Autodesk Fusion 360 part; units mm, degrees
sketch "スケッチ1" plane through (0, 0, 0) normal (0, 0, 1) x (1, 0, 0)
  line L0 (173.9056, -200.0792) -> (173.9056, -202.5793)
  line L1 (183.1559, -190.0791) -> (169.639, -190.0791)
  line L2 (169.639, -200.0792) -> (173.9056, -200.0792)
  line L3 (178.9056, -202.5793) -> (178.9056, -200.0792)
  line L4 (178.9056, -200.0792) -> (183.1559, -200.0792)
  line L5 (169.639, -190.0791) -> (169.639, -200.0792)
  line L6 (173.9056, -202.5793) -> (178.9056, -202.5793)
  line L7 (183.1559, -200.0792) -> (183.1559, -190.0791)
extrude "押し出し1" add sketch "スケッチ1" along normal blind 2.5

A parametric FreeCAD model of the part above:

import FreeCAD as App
import Part
import Sketcher

V = App.Vector
Q = App.Units.Quantity


def add_polygon(sketch, points):
    """Adds a closed chain of lines whose ends are joined by coincident constraints."""
    first, n = sketch.GeometryCount, len(points)
    for a, b in zip(points, points[1:] + points[:1]):
        sketch.addGeometry(Part.LineSegment(App.Vector(*a, 0), App.Vector(*b, 0)), False)
    for i in range(n):
        sketch.addConstraint(Sketcher.Constraint("Coincident", first + i, 2, first + (i + 1) % n, 1))

doc = App.newDocument("Part")
params = doc.addObject("Spreadsheet::Sheet", "Params")
for row, (alias, value) in enumerate([
    ("sketch1_width", "5 mm"),
    ("sketch1_height", "10 mm"),
    ("sketch1_height2", "2.5 mm"),
    ("pad1_length", "2.5 mm"),
], start=1):
    params.set(f"A{row}", alias)
    params.set(f"B{row}", "=" + value)
    params.setAlias(f"B{row}", alias)

body = doc.addObject("PartDesign::Body", "Body")

sketch1 = body.newObject("Sketcher::SketchObject", "Sketch")
sketch1.AttachmentSupport = (doc.getObject("XY_Plane"), [""])
sketch1.MapMode = "FlatFace"
add_polygon(sketch1, [(169.6, -200.1), (173.9, -200.1), (173.9, -202.6), (178.9, -202.6), (178.9, -200.1), (183.2, -200.1), (183.2, -190.1), (169.6, -190.1)])
sketch1.addConstraint(Sketcher.Constraint("Horizontal", 0))
sketch1.addConstraint(Sketcher.Constraint("Vertical", 1))
sketch1.addConstraint(Sketcher.Constraint("Horizontal", 2))
sketch1.addConstraint(Sketcher.Constraint("Vertical", 3))
sketch1.addConstraint(Sketcher.Constraint("Horizontal", 4))
sketch1.addConstraint(Sketcher.Constraint("Vertical", 5))
sketch1.addConstraint(Sketcher.Constraint("Horizontal", 6))
sketch1.addConstraint(Sketcher.Constraint("Vertical", 7))
sketch1.addConstraint(Sketcher.Constraint("Horizontal", 0, 2, 3, 2))
sketch1.addConstraint(Sketcher.Constraint("DistanceX", 2, 1, 2, 2, Q("5 mm")))
sketch1.addConstraint(Sketcher.Constraint("DistanceY", 5, 1, 5, 2, Q("10 mm")))
sketch1.addConstraint(Sketcher.Constraint("DistanceY", 1, 2, 1, 1, Q("2.5 mm")))
sketch1.addConstraint(Sketcher.Constraint("DistanceX", 6, 2, 6, 1, Q("13.517 mm")))
sketch1.addConstraint(Sketcher.Constraint("DistanceX", 0, 1, 0, 2, Q("4.2666 mm")))
sketch1.addConstraint(Sketcher.Constraint("DistanceX", -1, 1, 4, 2, Q("183.156 mm")))
sketch1.addConstraint(Sketcher.Constraint("DistanceY", 5, 2, -1, 1, Q("190.079 mm")))
sketch1.setExpression("Constraints[17]", "Params.sketch1_width")
sketch1.setExpression("Constraints[18]", "Params.sketch1_height")
sketch1.setExpression("Constraints[19]", "Params.sketch1_height2")
pad1 = body.newObject("PartDesign::Pad", "Pad")
pad1.Profile = sketch1
pad1.setExpression("Length", "Params.pad1_length")

doc.recompute()
